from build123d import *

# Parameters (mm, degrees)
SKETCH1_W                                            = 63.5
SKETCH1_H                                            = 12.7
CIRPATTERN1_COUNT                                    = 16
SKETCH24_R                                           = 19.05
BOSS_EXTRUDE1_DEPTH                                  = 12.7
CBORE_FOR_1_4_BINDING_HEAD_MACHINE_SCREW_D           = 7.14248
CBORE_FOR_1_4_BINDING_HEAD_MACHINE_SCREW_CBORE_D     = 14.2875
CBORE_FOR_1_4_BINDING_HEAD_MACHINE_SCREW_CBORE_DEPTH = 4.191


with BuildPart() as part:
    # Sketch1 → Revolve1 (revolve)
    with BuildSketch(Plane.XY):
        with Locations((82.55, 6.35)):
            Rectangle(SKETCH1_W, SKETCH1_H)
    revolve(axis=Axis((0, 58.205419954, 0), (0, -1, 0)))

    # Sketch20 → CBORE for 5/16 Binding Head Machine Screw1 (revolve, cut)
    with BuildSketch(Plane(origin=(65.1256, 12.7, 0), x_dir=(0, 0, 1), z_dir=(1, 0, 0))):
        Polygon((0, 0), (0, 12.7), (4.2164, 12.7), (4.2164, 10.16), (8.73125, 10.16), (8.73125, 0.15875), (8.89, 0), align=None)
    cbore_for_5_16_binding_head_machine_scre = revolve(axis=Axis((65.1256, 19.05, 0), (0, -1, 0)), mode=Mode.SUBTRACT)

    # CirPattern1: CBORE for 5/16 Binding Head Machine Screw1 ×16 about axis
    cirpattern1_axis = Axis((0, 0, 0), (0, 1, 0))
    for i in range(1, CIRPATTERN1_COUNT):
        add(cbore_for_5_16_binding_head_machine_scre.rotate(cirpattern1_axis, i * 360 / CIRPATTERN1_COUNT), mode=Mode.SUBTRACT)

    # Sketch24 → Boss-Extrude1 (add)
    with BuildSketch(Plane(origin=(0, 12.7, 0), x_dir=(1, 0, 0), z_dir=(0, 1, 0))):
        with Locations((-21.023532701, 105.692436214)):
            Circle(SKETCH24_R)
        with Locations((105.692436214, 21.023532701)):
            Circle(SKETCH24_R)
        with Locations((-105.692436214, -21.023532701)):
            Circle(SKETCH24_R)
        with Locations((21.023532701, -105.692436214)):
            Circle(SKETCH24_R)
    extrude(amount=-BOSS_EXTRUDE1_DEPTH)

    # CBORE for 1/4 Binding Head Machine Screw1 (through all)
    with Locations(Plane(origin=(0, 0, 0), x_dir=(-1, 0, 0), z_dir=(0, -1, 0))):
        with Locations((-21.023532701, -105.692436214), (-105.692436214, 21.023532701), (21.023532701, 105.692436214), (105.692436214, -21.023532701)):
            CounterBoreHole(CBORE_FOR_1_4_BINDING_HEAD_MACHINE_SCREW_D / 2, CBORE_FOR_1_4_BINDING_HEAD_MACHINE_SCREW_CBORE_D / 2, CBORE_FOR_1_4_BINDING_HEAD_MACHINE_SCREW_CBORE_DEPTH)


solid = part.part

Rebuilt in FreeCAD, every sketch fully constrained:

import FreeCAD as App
import Part
import Sketcher
from FreeCAD import Vector
Q = App.Units.Quantity


def add_polygon(sketch, points):
    """Adds a closed chain of lines whose ends are joined by coincident constraints."""
    first, n = sketch.GeometryCount, len(points)
    for a, b in zip(points, points[1:] + points[:1]):
        sketch.addGeometry(Part.LineSegment(App.Vector(*a, 0), App.Vector(*b, 0)), False)
    for i in range(n):
        sketch.addConstraint(Sketcher.Constraint("Coincident", first + i, 2, first + (i + 1) % n, 1))

doc = App.newDocument("Part")
body = doc.addObject("PartDesign::Body", "Body")

# Sketch on XY plane
sketch1 = body.newObject("Sketcher::SketchObject", "Sketch")
sketch1.AttachmentSupport = (doc.getObject("XY_Plane"), [""])
sketch1.MapMode = "FlatFace"
add_polygon(sketch1, [(51, 13), (51, 0), (114, 0), (114, 13)])  # lines 0-3
sketch1.addConstraint(Sketcher.Constraint("Vertical", 0))
sketch1.addConstraint(Sketcher.Constraint("Horizontal", 1))
sketch1.addConstraint(Sketcher.Constraint("Vertical", 2))
sketch1.addConstraint(Sketcher.Constraint("Horizontal", 3))
sketch1.addConstraint(Sketcher.Constraint("PointOnObject", 0, 2, -1))
sketch1.addConstraint(Sketcher.Constraint("DistanceX", 1, 1, 1, 2, Q("2.5 in")))
sketch1.addConstraint(Sketcher.Constraint("DistanceY", 0, 2, 0, 1, Q("0.5 in")))
sketch1.addConstraint(Sketcher.Constraint("DistanceX", -1, 1, 0, 2, Q("2 in")))
revolution = body.newObject("PartDesign::Revolution", "Revolution")
revolution.Profile = sketch1
revolution.ReferenceAxis = (sketch1, ["V_Axis"])
revolution.Angle = 360

# Sketch on YZ plane
sketch2 = body.newObject("Sketcher::SketchObject", "Sketch001")
sketch2.AttachmentSupport = (doc.getObject("YZ_Plane"), [""])
sketch2.MapMode = "FlatFace"
sketch2.AttachmentOffset = App.Placement(Vector(0, 0, 2.564 * 25.4), App.Rotation())
add_polygon(sketch2, [(0, 0), (12.7, 0), (12.7, 8.89), (12.54, 8.73), (2.54, 8.73), (2.54, 4.22), (0, 4.22)])  # lines 0-6
sketch2.addConstraint(Sketcher.Constraint("Horizontal", 0))
sketch2.addConstraint(Sketcher.Constraint("Vertical", 1))
sketch2.addConstraint(Sketcher.Constraint("Horizontal", 3))
sketch2.addConstraint(Sketcher.Constraint("Vertical", 4))
sketch2.addConstraint(Sketcher.Constraint("Horizontal", 5))
sketch2.addConstraint(Sketcher.Constraint("Vertical", 6))
sketch2.addConstraint(Sketcher.Constraint("Coincident", 6, 2, -1, 1))
sketch2.addConstraint(Sketcher.Constraint("DistanceX", 0, 1, 0, 2, Q("0.5 in")))
sketch2.addConstraint(Sketcher.Constraint("DistanceX", 5, 2, 5, 1, Q("0.1 in")))
sketch2.addConstraint(Sketcher.Constraint("Angle", 2, Q("-135 deg")))
sketch2.addConstraint(Sketcher.Constraint("DistanceY", 1, 1, 1, 2, Q("0.35 in")))
sketch2.addConstraint(Sketcher.Constraint("DistanceY", 6, 2, 6, 1, Q("0.166 in")))
sketch2.addConstraint(Sketcher.Constraint("DistanceY", -1, 1, 2, 2, Q("0.34375 in")))
groove = body.newObject("PartDesign::Groove", "Groove")
groove.Profile = sketch2
groove.ReferenceAxis = (sketch2, ["H_Axis"])
groove.Angle = 360
doc.recompute()

polarpattern = body.newObject("PartDesign::PolarPattern", "PolarPattern")
polarpattern.Originals = [groove]
polarpattern.Axis = (doc.getObject("Y_Axis"), [""])
polarpattern.Angle = 360
polarpattern.Occurrences = 16
body.Tip = polarpattern

# Sketch on XZ plane
sketch3 = body.newObject("Sketcher::SketchObject", "Sketch002")
sketch3.AttachmentSupport = (doc.getObject("XZ_Plane"), [""])
sketch3.MapMode = "FlatFace"
sketch3.AttachmentOffset = App.Placement(Vector(0, 0, -0.5 * 25.4), App.Rotation())
sketch3.addGeometry(Part.Circle(Vector(-21, -106, 0), Vector(0, 0, 1), 19), False)
sketch3.addGeometry(Part.Circle(Vector(106, -21, 0), Vector(0, 0, 1), 19), False)
sketch3.addGeometry(Part.Circle(Vector(-106, 21, 0), Vector(0, 0, 1), 19), False)
sketch3.addGeometry(Part.Circle(Vector(21, 106, 0), Vector(0, 0, 1), 19), False)
sketch3.addConstraint(Sketcher.Constraint("Equal", 0, 1))
sketch3.addConstraint(Sketcher.Constraint("Equal", 1, 2))
sketch3.addConstraint(Sketcher.Constraint("Equal", 2, 3))
sketch3.addConstraint(Sketcher.Constraint("Symmetric", 1, 3, 2, 3, -1, 1))
sketch3.addConstraint(Sketcher.Constraint("Symmetric", 0, 3, 3, 3, -1, 1))
sketch3.addConstraint(Sketcher.Constraint("Diameter", 0, Q("1.5 in")))
sketch3.addConstraint(Sketcher.Constraint("DistanceX", 0, 3, 1, 3, 126.715969))
sketch3.addConstraint(Sketcher.Constraint("DistanceY", 0, 3, 2, 3, 126.715969))
sketch3.addConstraint(Sketcher.Constraint("DistanceX", 0, 3, -1, 1, 21.023533))
sketch3.addConstraint(Sketcher.Constraint("DistanceY", 0, 3, -1, 1, 105.692436))
pad1 = body.newObject("PartDesign::Pad", "Pad")
pad1.Profile = sketch3
pad1.Length = Q("0.5 in")

# Sketch on XZ plane
sketch4 = body.newObject("Sketcher::SketchObject", "Sketch003")
sketch4.AttachmentSupport = (doc.getObject("XZ_Plane"), [""])
sketch4.MapMode = "FlatFace"
sketch4.addGeometry(Part.Circle(Vector(21, 105.7, 0), Vector(0, 0, 1), 3.6), False)
sketch4.addGeometry(Part.Circle(Vector(105.7, -21, 0), Vector(0, 0, 1), 3.6), False)
sketch4.addGeometry(Part.Circle(Vector(-21, -105.7, 0), Vector(0, 0, 1), 3.6), False)
sketch4.addGeometry(Part.Circle(Vector(-105.7, 21, 0), Vector(0, 0, 1), 3.6), False)
sketch4.addConstraint(Sketcher.Constraint("Equal", 0, 1))
sketch4.addConstraint(Sketcher.Constraint("Equal", 1, 2))
sketch4.addConstraint(Sketcher.Constraint("Equal", 2, 3))
sketch4.addConstraint(Sketcher.Constraint("Symmetric", 0, 3, 2, 3, -1, 1))
sketch4.addConstraint(Sketcher.Constraint("Symmetric", 1, 3, 3, 3, -1, 1))
sketch4.addConstraint(Sketcher.Constraint("Diameter", 0, Q("0.2812 in")))
sketch4.addConstraint(Sketcher.Constraint("DistanceY", 1, 3, 0, 3, 126.715969))
sketch4.addConstraint(Sketcher.Constraint("DistanceX", 2, 3, 1, 3, 126.715969))
sketch4.addConstraint(Sketcher.Constraint("DistanceX", -1, 1, 0, 3, 21.023533))
sketch4.addConstraint(Sketcher.Constraint("DistanceY", -1, 1, 0, 3, 105.692436))
doc.recompute()
hole = body.newObject("PartDesign::Hole", "Hole")
hole.Profile = sketch4
hole.ThreadType = "None"
hole.Diameter = Q("0.2812 in")
hole.DepthType = "ThroughAll"
hole.HoleCutType = "Counterbore"
hole.HoleCutDiameter = Q("0.5625 in")
hole.HoleCutDepth = Q("0.165 in")

doc.recompute()
